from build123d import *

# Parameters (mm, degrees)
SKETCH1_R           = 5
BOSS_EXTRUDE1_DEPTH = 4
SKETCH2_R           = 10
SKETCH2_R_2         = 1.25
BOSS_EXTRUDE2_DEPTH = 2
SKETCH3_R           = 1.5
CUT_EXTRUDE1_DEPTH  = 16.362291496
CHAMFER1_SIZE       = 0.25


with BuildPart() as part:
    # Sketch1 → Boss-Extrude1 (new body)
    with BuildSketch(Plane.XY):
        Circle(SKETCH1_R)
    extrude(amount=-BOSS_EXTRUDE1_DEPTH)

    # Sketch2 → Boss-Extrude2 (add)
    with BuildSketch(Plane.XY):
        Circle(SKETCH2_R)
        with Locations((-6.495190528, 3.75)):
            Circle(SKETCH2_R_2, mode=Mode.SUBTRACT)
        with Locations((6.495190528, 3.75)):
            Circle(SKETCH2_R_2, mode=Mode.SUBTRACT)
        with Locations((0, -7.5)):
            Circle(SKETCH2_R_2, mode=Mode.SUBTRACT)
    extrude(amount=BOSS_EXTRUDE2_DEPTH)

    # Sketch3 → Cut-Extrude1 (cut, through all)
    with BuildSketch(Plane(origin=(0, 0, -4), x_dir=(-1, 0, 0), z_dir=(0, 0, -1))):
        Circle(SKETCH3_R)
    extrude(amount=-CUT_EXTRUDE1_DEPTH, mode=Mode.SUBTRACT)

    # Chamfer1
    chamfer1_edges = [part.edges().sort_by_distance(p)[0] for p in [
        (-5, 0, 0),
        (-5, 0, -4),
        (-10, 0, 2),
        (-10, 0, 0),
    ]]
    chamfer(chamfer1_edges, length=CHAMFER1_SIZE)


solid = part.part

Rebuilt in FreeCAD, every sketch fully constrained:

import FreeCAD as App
import Part
import Sketcher
Q = App.Units.Quantity


def edges_at(feature, points):
    """Names of the edges that pass closest to the given points."""
    edges = feature.Shape.Edges
    near = lambda p: min(range(len(edges)), key=lambda i: edges[i].distToShape(Part.Vertex(*p))[0])
    return sorted({f"Edge{near(p) + 1}" for p in points})

doc = App.newDocument("Part")
body = doc.addObject("PartDesign::Body", "Body")

sketch1 = body.newObject("Sketcher::SketchObject", "Sketch")
sketch1.AttachmentSupport = (doc.getObject("XY_Plane"), [""])
sketch1.MapMode = "FlatFace"
sketch1.addGeometry(Part.Circle(App.Vector(0, 0, 0), App.Vector(0, 0, 1), 5), False)
sketch1.addConstraint([
    Sketcher.Constraint("Coincident", 0, 3, -1, 1),
    Sketcher.Constraint("Diameter", 0, Q("10 mm")),
])
pad1 = body.newObject("PartDesign::Pad", "Pad")
pad1.Profile = sketch1
pad1.Length = 4
pad1.Reversed = True

sketch2 = body.newObject("Sketcher::SketchObject", "Sketch001")
sketch2.AttachmentSupport = (doc.getObject("XY_Plane"), [""])
sketch2.MapMode = "FlatFace"
sketch2.addGeometry([
    Part.Circle(App.Vector(0, 0, 0), App.Vector(0, 0, 1), 10),
    Part.Circle(App.Vector(0, -7.5, 0), App.Vector(0, 0, 1), 1.2),
    Part.Circle(App.Vector(-6.5, 3.8, 0), App.Vector(0, 0, 1), 1.2),
    Part.Circle(App.Vector(6.5, 3.8, 0), App.Vector(0, 0, 1), 1.2),
], False)
sketch2.addConstraint([
    Sketcher.Constraint("Coincident", 0, 3, -1, 1),
    Sketcher.Constraint("Equal", 1, 2),
    Sketcher.Constraint("Equal", 2, 3),
    Sketcher.Constraint("Symmetric", 2, 3, 3, 3, -2),
    Sketcher.Constraint("PointOnObject", 1, 3, -2),
    Sketcher.Constraint("Diameter", 0, Q("20 mm")),
    Sketcher.Constraint("Diameter", 1, Q("2.5 mm")),
    Sketcher.Constraint("DistanceY", 1, 3, -1, 1, Q("7.5 mm")),
    Sketcher.Constraint("DistanceY", -1, 1, 2, 3, Q("3.75 mm")),
    Sketcher.Constraint("DistanceX", 2, 3, -1, 1, Q("6.495191 mm")),
])
pad2 = body.newObject("PartDesign::Pad", "Pad001")
pad2.Profile = sketch2
pad2.Length = 2

sketch3 = body.newObject("Sketcher::SketchObject", "Sketch002")
sketch3.AttachmentSupport = (doc.getObject("XY_Plane"), [""])
sketch3.MapMode = "FlatFace"
sketch3.AttachmentOffset = App.Placement(App.Vector(0, 0, -4), App.Rotation())
sketch3.addGeometry(Part.Circle(App.Vector(0, 0, 0), App.Vector(0, 0, 1), 1.5), False)
sketch3.addConstraint([
    Sketcher.Constraint("Coincident", 0, 3, -1, 1),
    Sketcher.Constraint("Diameter", 0, Q("3 mm")),
])
pocket1 = body.newObject("PartDesign::Pocket", "Pocket")
pocket1.Profile = sketch3
pocket1.Type = "ThroughAll"
pocket1.Reversed = True
doc.recompute()

chamfer = body.newObject("PartDesign::Chamfer", "Chamfer")
chamfer.Base = (pocket1, edges_at(pocket1, [
    (-5, 0, 0),
    (-5, 0, -4),
    (-10, 0, 2),
    (-10, 0, 0),
]))
chamfer.Size = 0.25

doc.recompute()
